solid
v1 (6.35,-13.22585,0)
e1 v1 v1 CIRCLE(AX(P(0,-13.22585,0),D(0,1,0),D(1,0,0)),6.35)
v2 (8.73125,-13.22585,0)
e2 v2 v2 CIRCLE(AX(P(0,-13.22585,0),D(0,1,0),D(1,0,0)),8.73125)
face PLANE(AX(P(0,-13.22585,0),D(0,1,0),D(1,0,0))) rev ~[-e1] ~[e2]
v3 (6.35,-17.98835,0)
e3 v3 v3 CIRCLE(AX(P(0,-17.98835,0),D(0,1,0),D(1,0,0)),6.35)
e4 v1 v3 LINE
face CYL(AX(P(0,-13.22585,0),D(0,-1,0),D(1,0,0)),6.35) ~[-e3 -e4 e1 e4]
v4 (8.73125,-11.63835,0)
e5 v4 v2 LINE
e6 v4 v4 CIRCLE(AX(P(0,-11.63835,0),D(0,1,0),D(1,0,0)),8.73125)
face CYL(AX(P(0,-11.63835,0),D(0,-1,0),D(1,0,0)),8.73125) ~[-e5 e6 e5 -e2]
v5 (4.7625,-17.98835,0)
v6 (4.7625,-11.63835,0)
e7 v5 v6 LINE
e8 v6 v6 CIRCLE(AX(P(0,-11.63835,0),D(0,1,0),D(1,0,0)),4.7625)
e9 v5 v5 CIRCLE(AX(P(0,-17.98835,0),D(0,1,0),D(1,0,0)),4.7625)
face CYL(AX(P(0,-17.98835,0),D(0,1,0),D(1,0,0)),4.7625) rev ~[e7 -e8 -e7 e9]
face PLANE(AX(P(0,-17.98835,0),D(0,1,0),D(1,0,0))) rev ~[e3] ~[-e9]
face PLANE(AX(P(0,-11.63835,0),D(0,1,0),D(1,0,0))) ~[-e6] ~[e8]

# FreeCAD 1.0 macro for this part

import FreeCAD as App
import Part
import Sketcher
from FreeCAD import Vector
Q = App.Units.Quantity

doc = App.newDocument("Part")
params = doc.addObject("Spreadsheet::Sheet", "Params")
for row, (alias, value) in enumerate([
    ("sketch1_height", "0.25 in"),
    ("sketch1_width", "0.15625 in"),
    ("sketch1_width2", "0.0625 in"),
    ("revolution_angle", "360 deg"),
], start=1):
    params.set(f"A{row}", alias)
    params.set(f"B{row}", "=" + value)
    params.setAlias(f"B{row}", alias)

body = doc.addObject("PartDesign::Body", "Body")

sketch1 = body.newObject("Sketcher::SketchObject", "Sketch")
sketch1.AttachmentSupport = (doc.getObject("XY_Plane"), [""])
sketch1.MapMode = "FlatFace"
sketch1.addGeometry(Part.LineSegment(Vector(8.7, -11.6, 0), Vector(4.8, -11.6, 0)), False)
sketch1.addGeometry(Part.LineSegment(Vector(4.8, -11.6, 0), Vector(4.8, -18, 0)), False)
sketch1.addGeometry(Part.LineSegment(Vector(4.8, -18, 0), Vector(6.3, -18, 0)), False)
sketch1.addGeometry(Part.LineSegment(Vector(6.3, -18, 0), Vector(6.3, -13.2, 0)), False)
sketch1.addGeometry(Part.LineSegment(Vector(6.3, -13.2, 0), Vector(8.7, -13.2, 0)), False)
sketch1.addGeometry(Part.LineSegment(Vector(8.7, -13.2, 0), Vector(8.7, -11.6, 0)), False)
sketch1.addConstraint(Sketcher.Constraint("Coincident", 0, 2, 1, 1))
sketch1.addConstraint(Sketcher.Constraint("Coincident", 1, 2, 2, 1))
sketch1.addConstraint(Sketcher.Constraint("Coincident", 2, 2, 3, 1))
sketch1.addConstraint(Sketcher.Constraint("Coincident", 3, 2, 4, 1))
sketch1.addConstraint(Sketcher.Constraint("Coincident", 4, 2, 5, 1))
sketch1.addConstraint(Sketcher.Constraint("Coincident", 5, 2, 0, 1))
sketch1.addConstraint(Sketcher.Constraint("Horizontal", 0))
sketch1.addConstraint(Sketcher.Constraint("Vertical", 1))
sketch1.addConstraint(Sketcher.Constraint("Horizontal", 2))
sketch1.addConstraint(Sketcher.Constraint("Vertical", 3))
sketch1.addConstraint(Sketcher.Constraint("Horizontal", 4))
sketch1.addConstraint(Sketcher.Constraint("Vertical", 5))
sketch1.addConstraint(Sketcher.Constraint("Equal", 2, 5))
sketch1.addConstraint(Sketcher.Constraint("DistanceY", 1, 2, 1, 1, Q("0.25 in")))
sketch1.addConstraint(Sketcher.Constraint("DistanceX", 0, 2, 0, 1, Q("0.15625 in")))
sketch1.addConstraint(Sketcher.Constraint("DistanceX", 2, 1, 2, 2, Q("0.0625 in")))
sketch1.addConstraint(Sketcher.Constraint("DistanceX", -1, 1, 2, 2, Q("0.25 in")))
sketch1.addConstraint(Sketcher.Constraint("DistanceY", 0, 2, -1, 1, 11.63835))
sketch1.setExpression("Constraints[13]", "Params.sketch1_height")
sketch1.setExpression("Constraints[14]", "Params.sketch1_width")
sketch1.setExpression("Constraints[15]", "Params.sketch1_width2")
revolution = body.newObject("PartDesign::Revolution", "Revolution")
revolution.Profile = sketch1
revolution.ReferenceAxis = (sketch1, ["V_Axis"])
revolution.setExpression("Angle", "Params.revolution_angle")

doc.recompute()
